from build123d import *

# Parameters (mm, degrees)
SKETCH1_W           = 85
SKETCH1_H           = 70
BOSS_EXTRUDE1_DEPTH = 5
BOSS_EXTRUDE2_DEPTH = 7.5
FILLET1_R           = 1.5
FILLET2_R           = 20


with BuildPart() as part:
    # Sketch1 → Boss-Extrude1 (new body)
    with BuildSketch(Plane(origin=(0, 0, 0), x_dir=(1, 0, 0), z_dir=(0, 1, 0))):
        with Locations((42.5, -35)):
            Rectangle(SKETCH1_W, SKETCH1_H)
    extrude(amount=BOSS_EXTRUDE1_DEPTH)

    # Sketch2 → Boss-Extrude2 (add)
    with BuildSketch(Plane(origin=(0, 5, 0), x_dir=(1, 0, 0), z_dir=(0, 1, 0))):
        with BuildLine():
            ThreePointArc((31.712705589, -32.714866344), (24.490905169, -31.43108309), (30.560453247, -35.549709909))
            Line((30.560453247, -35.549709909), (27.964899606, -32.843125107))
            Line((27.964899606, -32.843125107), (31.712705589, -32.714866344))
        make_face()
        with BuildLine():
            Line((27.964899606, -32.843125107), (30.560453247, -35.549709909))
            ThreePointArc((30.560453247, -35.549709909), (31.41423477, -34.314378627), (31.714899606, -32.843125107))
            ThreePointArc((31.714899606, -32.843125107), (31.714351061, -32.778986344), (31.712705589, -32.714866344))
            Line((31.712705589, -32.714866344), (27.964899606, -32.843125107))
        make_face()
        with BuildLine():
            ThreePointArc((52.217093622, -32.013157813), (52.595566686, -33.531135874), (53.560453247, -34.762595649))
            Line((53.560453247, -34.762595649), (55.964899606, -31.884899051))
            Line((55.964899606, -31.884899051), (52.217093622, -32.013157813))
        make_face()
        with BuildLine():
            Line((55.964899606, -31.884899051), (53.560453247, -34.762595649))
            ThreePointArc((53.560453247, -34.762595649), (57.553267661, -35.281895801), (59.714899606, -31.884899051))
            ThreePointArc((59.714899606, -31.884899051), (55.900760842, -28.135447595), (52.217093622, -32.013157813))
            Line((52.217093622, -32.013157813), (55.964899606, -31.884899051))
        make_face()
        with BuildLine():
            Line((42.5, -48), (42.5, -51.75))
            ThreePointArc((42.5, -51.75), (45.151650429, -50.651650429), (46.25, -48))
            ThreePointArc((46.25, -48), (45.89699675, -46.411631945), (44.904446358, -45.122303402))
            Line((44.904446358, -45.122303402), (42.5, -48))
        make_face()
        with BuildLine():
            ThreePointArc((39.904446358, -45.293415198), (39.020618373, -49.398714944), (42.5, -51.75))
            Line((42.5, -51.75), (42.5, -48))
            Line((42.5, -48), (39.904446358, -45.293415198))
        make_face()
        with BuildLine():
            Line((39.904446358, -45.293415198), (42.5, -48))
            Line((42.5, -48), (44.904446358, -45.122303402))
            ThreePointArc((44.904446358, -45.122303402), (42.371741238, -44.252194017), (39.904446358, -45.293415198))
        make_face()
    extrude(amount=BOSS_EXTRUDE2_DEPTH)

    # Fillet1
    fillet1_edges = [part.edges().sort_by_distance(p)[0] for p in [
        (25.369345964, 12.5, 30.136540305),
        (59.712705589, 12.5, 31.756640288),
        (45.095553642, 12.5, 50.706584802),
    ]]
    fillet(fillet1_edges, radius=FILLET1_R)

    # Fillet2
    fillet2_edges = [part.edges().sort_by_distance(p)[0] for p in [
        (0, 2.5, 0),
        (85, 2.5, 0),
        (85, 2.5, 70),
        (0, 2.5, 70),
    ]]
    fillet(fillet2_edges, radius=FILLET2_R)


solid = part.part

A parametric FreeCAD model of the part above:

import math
import FreeCAD as App
import Part
import Sketcher
from FreeCAD import Vector


def edges_at(feature, points):
    """Names of the edges that pass closest to the given points."""
    edges = feature.Shape.Edges
    near = lambda p: min(range(len(edges)), key=lambda i: edges[i].distToShape(Part.Vertex(*p))[0])
    return sorted({f"Edge{near(p) + 1}" for p in points})


def add_polygon(sketch, points):
    """Adds a closed chain of lines whose ends are joined by coincident constraints."""
    first, n = sketch.GeometryCount, len(points)
    for a, b in zip(points, points[1:] + points[:1]):
        sketch.addGeometry(Part.LineSegment(App.Vector(*a, 0), App.Vector(*b, 0)), False)
    for i in range(n):
        sketch.addConstraint(Sketcher.Constraint("Coincident", first + i, 2, first + (i + 1) % n, 1))

doc = App.newDocument("Part")
body = doc.addObject("PartDesign::Body", "Body")

# Sketch on XZ plane
sketch1 = body.newObject("Sketcher::SketchObject", "Sketch")
sketch1.AttachmentSupport = (doc.getObject("XZ_Plane"), [""])
sketch1.MapMode = "FlatFace"
add_polygon(sketch1, [(0, 0), (0, 70), (85, 70), (85, 0)])  # lines 0-3
sketch1.addConstraint([
    Sketcher.Constraint("Vertical", 0),
    Sketcher.Constraint("Horizontal", 1),
    Sketcher.Constraint("Vertical", 2),
    Sketcher.Constraint("Horizontal", 3),
    Sketcher.Constraint("Coincident", 3, 2, -1, 1),
    Sketcher.Constraint("DistanceX", 1, 1, 1, 2, 85.0),
    Sketcher.Constraint("DistanceY", 0, 1, 0, 2, 70.0),
])
pad1 = body.newObject("PartDesign::Pad", "Pad")
pad1.Profile = sketch1
pad1.Length = 5
pad1.Reversed = True

# Sketch on XZ plane
sketch2 = body.newObject("Sketcher::SketchObject", "Sketch001")
sketch2.AttachmentSupport = (doc.getObject("XZ_Plane"), [""])
sketch2.MapMode = "FlatFace"
sketch2.AttachmentOffset = App.Placement(Vector(0, 0, -5), App.Rotation())
sketch2.addGeometry([
    Part.ArcOfCircle(Part.Circle(Vector(27.96, 32.84, 0), Vector(0, 0, 1), 3.75), math.radians(46), math.radians(358)),  # 0
    Part.ArcOfCircle(Part.Circle(Vector(27.96, 32.84, 0), Vector(0, 0, 1), 3.75), math.radians(0), math.radians(46)),  # 1
    Part.ArcOfCircle(Part.Circle(Vector(27.96, 32.84, 0), Vector(0, 0, 1), 3.75), math.radians(-1.96), math.radians(0)),  # 2
    Part.ArcOfCircle(Part.Circle(Vector(55.96, 31.88, 0), Vector(0, 0, 1), 3.75), math.radians(130), math.radians(178)),  # 3
    Part.ArcOfCircle(Part.Circle(Vector(55.96, 31.88, 0), Vector(0, 0, 1), 3.75), math.radians(0), math.radians(130)),  # 4
    Part.ArcOfCircle(Part.Circle(Vector(55.96, 31.88, 0), Vector(0, 0, 1), 3.75), math.radians(178), math.radians(360)),  # 5
    Part.ArcOfCircle(Part.Circle(Vector(42.5, 48, 0), Vector(0, 0, 1), 3.75), math.radians(0), math.radians(90)),  # 6
    Part.ArcOfCircle(Part.Circle(Vector(42.5, 48, 0), Vector(0, 0, 1), 3.75), math.radians(-50), math.radians(0)),  # 7
    Part.ArcOfCircle(Part.Circle(Vector(42.5, 48, 0), Vector(0, 0, 1), 3.75), math.radians(-134), math.radians(-50)),  # 8
    Part.ArcOfCircle(Part.Circle(Vector(42.5, 48, 0), Vector(0, 0, 1), 3.75), math.radians(90), math.radians(226)),  # 9
], False)
sketch2.addConstraint([
    Sketcher.Constraint("Tangent", 0, 1, 1, 2),
    Sketcher.Constraint("Tangent", 1, 1, 2, 2),
    Sketcher.Constraint("Tangent", 2, 1, 0, 2),
    Sketcher.Constraint("Tangent", 3, 1, 4, 2),
    Sketcher.Constraint("Tangent", 4, 1, 5, 2),
    Sketcher.Constraint("Tangent", 5, 1, 3, 2),
    Sketcher.Constraint("Tangent", 6, 1, 7, 2),
    Sketcher.Constraint("Tangent", 7, 1, 8, 2),
    Sketcher.Constraint("Tangent", 8, 1, 9, 2),
    Sketcher.Constraint("Tangent", 9, 1, 6, 2),
    Sketcher.Constraint("Equal", 1, 3),
    Sketcher.Constraint("Equal", 5, 6),
    Sketcher.Constraint("Equal", 6, 7),
    Sketcher.Constraint("Horizontal", 2, 3, 1, 1),
    Sketcher.Constraint("Horizontal", 5, 3, 4, 1),
    Sketcher.Constraint("Horizontal", 9, 3, 6, 1),
    Sketcher.Constraint("Vertical", 8, 3, 9, 1),
    Sketcher.Constraint("Radius", 0, 3.75),
    Sketcher.Constraint("DistanceY", -1, 1, 6, 3, 48.0),
    Sketcher.Constraint("DistanceX", 0, 3, 3, 3, 28.0),
    Sketcher.Constraint("DistanceX", 8, 1, 7, 1, 5.0),
    Sketcher.Constraint("DistanceX", -1, 1, 6, 3, 42.5),
    Sketcher.Constraint("DistanceX", -1, 1, 0, 3, 27.9649),
    Sketcher.Constraint("DistanceY", -1, 1, 3, 3, 31.884899),
    Sketcher.Constraint("DistanceY", -1, 1, 0, 1, 35.54971),
    Sketcher.Constraint("DistanceY", 2, 1, 1, 1, 0.128259),
    Sketcher.Constraint("DistanceX", 5, 1, 3, 1, 1.34336),
    Sketcher.Constraint("DistanceY", 4, 3, 5, 1, 0.128259),
    Sketcher.Constraint("DistanceY", 7, 1, 8, 1, 0.171112),
    Sketcher.Constraint("DistanceY", -1, 1, 0, 3, 32.843125),
])
pad2 = body.newObject("PartDesign::Pad", "Pad001")
pad2.Profile = sketch2
pad2.Length = 7.5
pad2.Reversed = True
doc.recompute()

fillet = body.newObject("PartDesign::Fillet", "Fillet")
fillet.Base = (pad2, edges_at(pad2, [(24.491, 12.5, 31.431), (55.901, 12.5, 28.135), (45.152, 12.5, 50.652)]))
fillet.Radius = 1.5
doc.recompute()

fillet2 = body.newObject("PartDesign::Fillet", "Fillet001")
fillet2.Base = (fillet, edges_at(fillet, [
    (0, 2.5, 0),
    (85, 2.5, 0),
    (85, 2.5, 70),
    (0, 2.5, 70),
]))
fillet2.Radius = 20

doc.recompute()
